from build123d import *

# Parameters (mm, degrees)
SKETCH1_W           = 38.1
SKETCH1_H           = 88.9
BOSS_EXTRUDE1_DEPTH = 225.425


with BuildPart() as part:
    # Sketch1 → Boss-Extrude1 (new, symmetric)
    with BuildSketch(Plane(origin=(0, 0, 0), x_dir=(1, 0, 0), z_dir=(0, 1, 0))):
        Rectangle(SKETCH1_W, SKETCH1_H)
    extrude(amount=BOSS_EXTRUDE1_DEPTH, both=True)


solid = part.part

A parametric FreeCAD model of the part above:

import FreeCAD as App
import Part
import Sketcher
from FreeCAD import Vector
Q = App.Units.Quantity


def add_polygon(sketch, points):
    """Adds a closed chain of lines whose ends are joined by coincident constraints."""
    first, n = sketch.GeometryCount, len(points)
    for a, b in zip(points, points[1:] + points[:1]):
        sketch.addGeometry(Part.LineSegment(App.Vector(*a, 0), App.Vector(*b, 0)), False)
    for i in range(n):
        sketch.addConstraint(Sketcher.Constraint("Coincident", first + i, 2, first + (i + 1) % n, 1))

doc = App.newDocument("Part")
body = doc.addObject("PartDesign::Body", "Body")

# Sketch on XZ plane
sketch1 = body.newObject("Sketcher::SketchObject", "Sketch")
sketch1.AttachmentSupport = (doc.getObject("XZ_Plane"), [""])
sketch1.MapMode = "FlatFace"
add_polygon(sketch1, [(-19, -44), (-19, 44), (19, 44), (19, -44)])  # lines 0-3
sketch1.addConstraint([
    Sketcher.Constraint("Vertical", 0),
    Sketcher.Constraint("Horizontal", 1),
    Sketcher.Constraint("Vertical", 2),
    Sketcher.Constraint("Horizontal", 3),
    Sketcher.Constraint("Symmetric", 0, 2, 2, 2, -1, 1),
    Sketcher.Constraint("DistanceX", 1, 1, 1, 2, Q("1.5 in")),
    Sketcher.Constraint("DistanceY", 0, 1, 0, 2, Q("3.5 in")),
])
pad1 = body.newObject("PartDesign::Pad", "Pad")
pad1.Profile = sketch1
pad1.Length = Q("17.75 in")
pad1.Midplane = True

doc.recompute()
